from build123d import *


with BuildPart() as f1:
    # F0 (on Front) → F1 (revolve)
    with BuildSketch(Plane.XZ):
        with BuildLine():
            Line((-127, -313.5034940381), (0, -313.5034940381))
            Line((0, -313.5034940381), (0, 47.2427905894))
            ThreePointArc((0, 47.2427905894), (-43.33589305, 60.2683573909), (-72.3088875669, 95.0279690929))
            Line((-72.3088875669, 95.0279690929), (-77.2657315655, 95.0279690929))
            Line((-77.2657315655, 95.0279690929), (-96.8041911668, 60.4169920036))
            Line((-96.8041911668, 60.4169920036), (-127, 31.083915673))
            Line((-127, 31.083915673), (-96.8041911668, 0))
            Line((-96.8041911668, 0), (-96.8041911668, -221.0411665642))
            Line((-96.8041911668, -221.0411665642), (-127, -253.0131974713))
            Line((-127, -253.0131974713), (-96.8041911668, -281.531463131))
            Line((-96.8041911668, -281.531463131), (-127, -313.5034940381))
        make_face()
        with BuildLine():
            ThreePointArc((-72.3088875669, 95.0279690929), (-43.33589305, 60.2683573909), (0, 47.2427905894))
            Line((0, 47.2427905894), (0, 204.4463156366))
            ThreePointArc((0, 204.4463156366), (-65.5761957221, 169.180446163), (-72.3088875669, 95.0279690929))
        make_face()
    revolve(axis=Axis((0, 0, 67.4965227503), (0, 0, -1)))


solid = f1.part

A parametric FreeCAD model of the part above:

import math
import FreeCAD as App
import Part
import Sketcher

V = App.Vector
Q = App.Units.Quantity

doc = App.newDocument("Part")
params = doc.addObject("Spreadsheet::Sheet", "Params")
for row, (alias, value) in enumerate([
    ("sketch1_width", "5 in"),
    ("revolution_angle", "360 deg"),
], start=1):
    params.set(f"A{row}", alias)
    params.set(f"B{row}", "=" + value)
    params.setAlias(f"B{row}", alias)

body = doc.addObject("PartDesign::Body", "Body")

# Sketch on XZ plane
sketch1 = doc.addObject("Sketcher::SketchObject", "Sketch")
body.addObject(sketch1)
sketch1.AttachmentSupport = (doc.XZ_Plane, [""])
sketch1.MapMode = "FlatFace"
sketch1.addGeometry([
    Part.LineSegment(V(-127, -313.5, 0), V(0, -313.5, 0)),  # 0
    Part.LineSegment(V(0, -313.5, 0), V(0, 204.4, 0)),  # 1
    Part.ArcOfCircle(Part.Circle(V(0, 125.8, 0), V(0, 0, 1), 78.6), math.radians(90), math.radians(203)),  # 2
    Part.LineSegment(V(-72.3, 95, 0), V(-77.3, 95, 0)),  # 3
    Part.LineSegment(V(-77.3, 95, 0), V(-96.8, 60.4, 0)),  # 4
    Part.LineSegment(V(-96.8, 60.4, 0), V(-127, 31.1, 0)),  # 5
    Part.LineSegment(V(-127, 31.1, 0), V(-96.8, 0, 0)),  # 6
    Part.LineSegment(V(-96.8, 0, 0), V(-96.8, -221, 0)),  # 7
    Part.LineSegment(V(-96.8, -221, 0), V(-127, -253, 0)),  # 8
    Part.LineSegment(V(-127, -253, 0), V(-96.8, -281.5, 0)),  # 9
    Part.LineSegment(V(-96.8, -281.5, 0), V(-127, -313.5, 0)),  # 10
], False)
sketch1.addConstraint([
    Sketcher.Constraint("Coincident", 0, 2, 1, 1),
    Sketcher.Constraint("Coincident", 1, 2, 2, 1),
    Sketcher.Constraint("Coincident", 2, 2, 3, 1),
    Sketcher.Constraint("Coincident", 3, 2, 4, 1),
    Sketcher.Constraint("Coincident", 4, 2, 5, 1),
    Sketcher.Constraint("Coincident", 5, 2, 6, 1),
    Sketcher.Constraint("Coincident", 6, 2, 7, 1),
    Sketcher.Constraint("Coincident", 7, 2, 8, 1),
    Sketcher.Constraint("Coincident", 8, 2, 9, 1),
    Sketcher.Constraint("Coincident", 9, 2, 10, 1),
    Sketcher.Constraint("Coincident", 10, 2, 0, 1),
    Sketcher.Constraint("Horizontal", 0),
    Sketcher.Constraint("Vertical", 1),
    Sketcher.Constraint("Horizontal", 3),
    Sketcher.Constraint("Vertical", 7),
    Sketcher.Constraint("PointOnObject", 2, 3, -2),
    Sketcher.Constraint("PointOnObject", 0, 2, -2),
    Sketcher.Constraint("PointOnObject", 6, 2, -1),
    Sketcher.Constraint("Perpendicular", 5, 6),
    Sketcher.Constraint("Perpendicular", 8, 9),
    Sketcher.Constraint("Perpendicular", 9, 10),
    Sketcher.Constraint("Vertical", 4, 2, 6, 2),
    Sketcher.Constraint("Vertical", 5, 2, 8, 2),
    Sketcher.Constraint("Vertical", 7, 2, 9, 2),
    Sketcher.Constraint("Vertical", 8, 2, 10, 2),
    Sketcher.Constraint("DistanceX", 0, 1, 0, 2, Q("5 in")),
    Sketcher.Constraint("Radius", 2, Q("78.601763 mm")),
    Sketcher.Constraint("Distance", 5, Q("42.097699 mm")),
    Sketcher.Constraint("DistanceY", 1, 1, 1, 2, Q("517.94981 mm")),
    Sketcher.Constraint("DistanceY", 5, 2, 1, 2, Q("173.3624 mm")),
    Sketcher.Constraint("Distance", 6, Q("43.335859 mm")),
    Sketcher.Constraint("Distance", 8, Q("43.97724 mm")),
    Sketcher.Constraint("DistanceX", 3, 2, 3, 1, Q("4.956844 mm")),
    Sketcher.Constraint("DistanceY", -1, 1, 2, 2, Q("95.027969 mm")),
])
sketch1.setExpression("Constraints[25]", "Params.sketch1_width")
revolution = doc.addObject("PartDesign::Revolution", "Revolution")
body.addObject(revolution)
revolution.Profile = sketch1
revolution.ReferenceAxis = (sketch1, ["V_Axis"])
revolution.setExpression("Angle", "Params.revolution_angle")

doc.recompute()
